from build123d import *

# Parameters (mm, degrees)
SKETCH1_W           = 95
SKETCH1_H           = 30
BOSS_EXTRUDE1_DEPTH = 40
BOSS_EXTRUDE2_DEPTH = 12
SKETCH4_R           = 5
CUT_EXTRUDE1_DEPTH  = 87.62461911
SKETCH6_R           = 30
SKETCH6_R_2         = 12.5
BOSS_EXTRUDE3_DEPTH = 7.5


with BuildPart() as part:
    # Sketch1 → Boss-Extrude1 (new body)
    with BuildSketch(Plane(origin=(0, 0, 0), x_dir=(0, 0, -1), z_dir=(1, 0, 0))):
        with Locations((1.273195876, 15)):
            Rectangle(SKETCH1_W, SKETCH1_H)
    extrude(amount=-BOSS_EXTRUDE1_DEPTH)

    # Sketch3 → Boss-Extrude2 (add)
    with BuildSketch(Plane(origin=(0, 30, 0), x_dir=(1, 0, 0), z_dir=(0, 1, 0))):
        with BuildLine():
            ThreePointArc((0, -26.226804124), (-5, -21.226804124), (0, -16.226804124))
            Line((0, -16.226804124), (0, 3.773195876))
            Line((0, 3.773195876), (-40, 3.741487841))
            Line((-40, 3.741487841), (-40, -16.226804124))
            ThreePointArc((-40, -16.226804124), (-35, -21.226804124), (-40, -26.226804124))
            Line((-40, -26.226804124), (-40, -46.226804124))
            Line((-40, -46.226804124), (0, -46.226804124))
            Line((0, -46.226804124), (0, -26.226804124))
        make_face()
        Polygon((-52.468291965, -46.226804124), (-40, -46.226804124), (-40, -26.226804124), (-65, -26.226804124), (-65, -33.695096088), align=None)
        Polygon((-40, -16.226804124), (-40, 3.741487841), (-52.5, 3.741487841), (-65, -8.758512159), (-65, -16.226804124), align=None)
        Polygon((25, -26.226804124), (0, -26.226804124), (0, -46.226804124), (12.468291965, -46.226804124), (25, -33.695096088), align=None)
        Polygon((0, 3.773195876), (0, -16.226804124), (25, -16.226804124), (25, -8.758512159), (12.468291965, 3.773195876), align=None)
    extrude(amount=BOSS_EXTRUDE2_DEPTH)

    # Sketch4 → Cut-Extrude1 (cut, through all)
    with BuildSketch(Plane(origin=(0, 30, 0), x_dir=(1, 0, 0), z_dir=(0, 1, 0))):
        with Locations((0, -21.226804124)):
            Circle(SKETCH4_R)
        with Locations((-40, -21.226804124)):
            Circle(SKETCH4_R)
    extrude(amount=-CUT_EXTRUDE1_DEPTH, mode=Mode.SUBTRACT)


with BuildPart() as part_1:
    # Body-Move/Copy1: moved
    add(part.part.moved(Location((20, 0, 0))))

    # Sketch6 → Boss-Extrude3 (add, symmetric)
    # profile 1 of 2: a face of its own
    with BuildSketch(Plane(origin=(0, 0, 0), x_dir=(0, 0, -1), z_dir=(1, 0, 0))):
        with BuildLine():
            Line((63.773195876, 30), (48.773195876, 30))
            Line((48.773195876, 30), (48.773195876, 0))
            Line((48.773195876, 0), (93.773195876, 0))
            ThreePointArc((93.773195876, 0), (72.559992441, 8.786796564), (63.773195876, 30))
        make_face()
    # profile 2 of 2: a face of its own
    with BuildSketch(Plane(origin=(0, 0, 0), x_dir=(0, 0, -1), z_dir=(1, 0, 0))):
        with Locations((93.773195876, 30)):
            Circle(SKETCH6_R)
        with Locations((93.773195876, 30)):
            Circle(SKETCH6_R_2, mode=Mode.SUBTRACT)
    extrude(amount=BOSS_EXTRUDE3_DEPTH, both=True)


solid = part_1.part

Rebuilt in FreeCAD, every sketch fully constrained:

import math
import FreeCAD as App
import Part
import Sketcher
Q = App.Units.Quantity


def add_polygon(sketch, points):
    """Adds a closed chain of lines whose ends are joined by coincident constraints."""
    first, n = sketch.GeometryCount, len(points)
    for a, b in zip(points, points[1:] + points[:1]):
        sketch.addGeometry(Part.LineSegment(App.Vector(*a, 0), App.Vector(*b, 0)), False)
    for i in range(n):
        sketch.addConstraint(Sketcher.Constraint("Coincident", first + i, 2, first + (i + 1) % n, 1))

doc = App.newDocument("Part")
body = doc.addObject("PartDesign::Body", "Body")

# Sketch on YZ plane
sketch1 = body.newObject("Sketcher::SketchObject", "Sketch")
sketch1.AttachmentSupport = (doc.getObject("YZ_Plane"), [""])
sketch1.MapMode = "FlatFace"
add_polygon(sketch1, [(30, 46.226804), (0, 46.226804), (0, -48.773196), (30, -48.773196)])  # lines 0-3
sketch1.addConstraint([
    Sketcher.Constraint("Horizontal", 0),
    Sketcher.Constraint("Vertical", 1),
    Sketcher.Constraint("Horizontal", 2),
    Sketcher.Constraint("Vertical", 3),
    Sketcher.Constraint("PointOnObject", 0, 2, -2),
    Sketcher.Constraint("DistanceX", 0, 2, 0, 1, Q("30 mm")),
    Sketcher.Constraint("DistanceY", 1, 2, 1, 1, Q("95 mm")),
    Sketcher.Constraint("DistanceY", -1, 1, 0, 2, Q("46.226804 mm")),
])
pad1 = body.newObject("PartDesign::Pad", "Pad")
pad1.Profile = sketch1
pad1.Length = 40
pad1.Reversed = True

# Sketch on XZ plane
sketch2 = body.newObject("Sketcher::SketchObject", "Sketch001")
sketch2.AttachmentSupport = (doc.getObject("XZ_Plane"), [""])
sketch2.MapMode = "FlatFace"
sketch2.AttachmentOffset = App.Placement(App.Vector(0, 0, -30), App.Rotation())
sketch2.addGeometry([
    Part.ArcOfCircle(Part.Circle(App.Vector(0, 21.226804, 0), App.Vector(0, 0, 1), 5), math.radians(90), math.radians(270)),  # 0
    Part.LineSegment(App.Vector(0, 16.226804, 0), App.Vector(25, 16.226804, 0)),  # 1
    Part.LineSegment(App.Vector(25, 16.226804, 0), App.Vector(25, 8.758512, 0)),  # 2
    Part.LineSegment(App.Vector(25, 8.758512, 0), App.Vector(12.468292, -3.773196, 0)),  # 3
    Part.LineSegment(App.Vector(12.468292, -3.773196, 0), App.Vector(0, -3.773196, 0)),  # 4
    Part.LineSegment(App.Vector(0, -3.773196, 0), App.Vector(-40, -3.741488, 0)),  # 5
    Part.LineSegment(App.Vector(-40, -3.741488, 0), App.Vector(-52.5, -3.741488, 0)),  # 6
    Part.LineSegment(App.Vector(-52.5, -3.741488, 0), App.Vector(-65, 8.758512, 0)),  # 7
    Part.LineSegment(App.Vector(-65, 8.758512, 0), App.Vector(-65, 16.226804, 0)),  # 8
    Part.LineSegment(App.Vector(-65, 16.226804, 0), App.Vector(-40, 16.226804, 0)),  # 9
    Part.ArcOfCircle(Part.Circle(App.Vector(-40, 21.226804, 0), App.Vector(0, 0, 1), 5), math.radians(-90), math.radians(90)),  # 10
    Part.LineSegment(App.Vector(-40, 26.226804, 0), App.Vector(-65, 26.226804, 0)),  # 11
    Part.LineSegment(App.Vector(-65, 26.226804, 0), App.Vector(-65, 33.695096, 0)),  # 12
    Part.LineSegment(App.Vector(-65, 33.695096, 0), App.Vector(-52.468292, 46.226804, 0)),  # 13
    Part.LineSegment(App.Vector(-52.468292, 46.226804, 0), App.Vector(12.468292, 46.226804, 0)),  # 14
    Part.LineSegment(App.Vector(12.468292, 46.226804, 0), App.Vector(25, 33.695096, 0)),  # 15
    Part.LineSegment(App.Vector(25, 33.695096, 0), App.Vector(25, 26.226804, 0)),  # 16
    Part.LineSegment(App.Vector(25, 26.226804, 0), App.Vector(0, 26.226804, 0)),  # 17
], False)
sketch2.addConstraint([
    Sketcher.Constraint("Tangent", 0, 2, 1, 1),
    Sketcher.Constraint("Coincident", 1, 2, 2, 1),
    Sketcher.Constraint("Coincident", 2, 2, 3, 1),
    Sketcher.Constraint("Coincident", 3, 2, 4, 1),
    Sketcher.Constraint("Coincident", 4, 2, 5, 1),
    Sketcher.Constraint("Coincident", 5, 2, 6, 1),
    Sketcher.Constraint("Coincident", 6, 2, 7, 1),
    Sketcher.Constraint("Coincident", 7, 2, 8, 1),
    Sketcher.Constraint("Coincident", 8, 2, 9, 1),
    Sketcher.Constraint("Tangent", 9, 2, 10, 1),
    Sketcher.Constraint("Tangent", 10, 2, 11, 1),
    Sketcher.Constraint("Coincident", 11, 2, 12, 1),
    Sketcher.Constraint("Coincident", 12, 2, 13, 1),
    Sketcher.Constraint("Coincident", 13, 2, 14, 1),
    Sketcher.Constraint("Coincident", 14, 2, 15, 1),
    Sketcher.Constraint("Coincident", 15, 2, 16, 1),
    Sketcher.Constraint("Coincident", 16, 2, 17, 1),
    Sketcher.Constraint("Tangent", 17, 2, 0, 1),
    Sketcher.Constraint("Horizontal", 1),
    Sketcher.Constraint("Vertical", 2),
    Sketcher.Constraint("Horizontal", 4),
    Sketcher.Constraint("Horizontal", 6),
    Sketcher.Constraint("Vertical", 8),
    Sketcher.Constraint("Horizontal", 9),
    Sketcher.Constraint("Horizontal", 11),
    Sketcher.Constraint("Vertical", 12),
    Sketcher.Constraint("Horizontal", 14),
    Sketcher.Constraint("Vertical", 16),
    Sketcher.Constraint("Horizontal", 17),
    Sketcher.Constraint("Equal", 0, 10),
    Sketcher.Constraint("PointOnObject", 0, 3, -2),
    Sketcher.Constraint("PointOnObject", 4, 2, -2),
    Sketcher.Constraint("Perpendicular", 3, 7),
    Sketcher.Constraint("Perpendicular", 7, 13),
    Sketcher.Constraint("Perpendicular", 13, 15),
    Sketcher.Constraint("Horizontal", 0, 3, 10, 3),
    Sketcher.Constraint("Horizontal", 2, 2, 7, 2),
    Sketcher.Constraint("Horizontal", 12, 2, 15, 2),
    Sketcher.Constraint("Vertical", 10, 3, 5, 2),
    Sketcher.Constraint("Vertical", 8, 2, 11, 2),
    Sketcher.Constraint("Vertical", 3, 2, 14, 2),
    Sketcher.Constraint("Vertical", 2, 2, 15, 2),
    Sketcher.Constraint("Equal", 1, 9),
    Sketcher.Constraint("Equal", 8, 12),
    Sketcher.Constraint("Equal", 3, 13),
    Sketcher.Constraint("Radius", 0, Q("5 mm")),
    Sketcher.Constraint("DistanceX", 1, 1, 1, 2, Q("25 mm")),
    Sketcher.Constraint("DistanceX", 6, 2, 6, 1, Q("12.5 mm")),
    Sketcher.Constraint("DistanceX", 10, 3, -1, 1, Q("40 mm")),
    Sketcher.Constraint("DistanceY", 3, 2, 0, 2, Q("20 mm")),
    Sketcher.Constraint("DistanceX", 4, 2, 4, 1, Q("12.468292 mm")),
    Sketcher.Constraint("DistanceY", -1, 1, 0, 3, Q("21.226804 mm")),
])
pad2 = body.newObject("PartDesign::Pad", "Pad001")
pad2.Profile = sketch2
pad2.Length = 12
pad2.Reversed = True

# Sketch on XZ plane
sketch3 = body.newObject("Sketcher::SketchObject", "Sketch002")
sketch3.AttachmentSupport = (doc.getObject("XZ_Plane"), [""])
sketch3.MapMode = "FlatFace"
sketch3.AttachmentOffset = App.Placement(App.Vector(0, 0, -30), App.Rotation())
sketch3.addGeometry([
    Part.Circle(App.Vector(0, 21.226804, 0), App.Vector(0, 0, 1), 5),
    Part.Circle(App.Vector(-40, 21.226804, 0), App.Vector(0, 0, 1), 5),
], False)
sketch3.addConstraint([
    Sketcher.Constraint("Equal", 0, 1),
    Sketcher.Constraint("PointOnObject", 0, 3, -2),
    Sketcher.Constraint("Horizontal", 0, 3, 1, 3),
    Sketcher.Constraint("Diameter", 0, Q("10 mm")),
    Sketcher.Constraint("DistanceX", 1, 3, -1, 1, Q("40 mm")),
    Sketcher.Constraint("DistanceY", -1, 1, 0, 3, Q("21.226804 mm")),
])
pocket1 = body.newObject("PartDesign::Pocket", "Pocket")
pocket1.Profile = sketch3
pocket1.Type = "ThroughAll"
pocket1.Reversed = True
body2 = doc.addObject("PartDesign::Body", "Body001")
doc.recompute()

body.Placement = App.Placement(App.Vector(20, 0, 0), App.Rotation(App.Vector(0, 0, 1), 0))
boolean = body2.newObject("PartDesign::Boolean", "Boolean")
boolean.Type = "Fuse"
boolean.addObjects([body])

# Sketch on YZ plane
sketch4 = body2.newObject("Sketcher::SketchObject", "Sketch003")
sketch4.AttachmentSupport = (doc.getObject("YZ_Plane001"), [""])
sketch4.MapMode = "FlatFace"
sketch4.addGeometry([
    Part.LineSegment(App.Vector(30, -63.773196, 0), App.Vector(30, -48.773196, 0)),  # 0
    Part.LineSegment(App.Vector(30, -48.773196, 0), App.Vector(0, -48.773196, 0)),  # 1
    Part.LineSegment(App.Vector(0, -48.773196, 0), App.Vector(0, -93.773196, 0)),  # 2
    Part.ArcOfCircle(Part.Circle(App.Vector(30, -93.773196, 0), App.Vector(0, 0, 1), 30), math.radians(180), math.radians(450)),  # 3
    Part.Circle(App.Vector(30, -93.773196, 0), App.Vector(0, 0, 1), 12.5),  # 4
], False)
sketch4.addConstraint([
    Sketcher.Constraint("Coincident", 0, 2, 1, 1),
    Sketcher.Constraint("Coincident", 1, 2, 2, 1),
    Sketcher.Constraint("Tangent", 2, 2, 3, 1),
    Sketcher.Constraint("Coincident", 3, 2, 0, 1),
    Sketcher.Constraint("Vertical", 0),
    Sketcher.Constraint("Horizontal", 1),
    Sketcher.Constraint("Vertical", 2),
    Sketcher.Constraint("Coincident", 4, 3, 3, 3),
    Sketcher.Constraint("PointOnObject", 1, 2, -2),
    Sketcher.Constraint("Vertical", 4, 3, 0, 2),
    Sketcher.Constraint("Diameter", 4, Q("25 mm")),
    Sketcher.Constraint("Radius", 3, Q("30 mm")),
    Sketcher.Constraint("DistanceY", 0, 1, 0, 2, Q("15 mm")),
    Sketcher.Constraint("DistanceY", 3, 3, -1, 1, Q("93.773196 mm")),
])
pad3 = body2.newObject("PartDesign::Pad", "Pad002")
pad3.Profile = sketch4
pad3.Length = 15
pad3.Midplane = True

doc.recompute()
